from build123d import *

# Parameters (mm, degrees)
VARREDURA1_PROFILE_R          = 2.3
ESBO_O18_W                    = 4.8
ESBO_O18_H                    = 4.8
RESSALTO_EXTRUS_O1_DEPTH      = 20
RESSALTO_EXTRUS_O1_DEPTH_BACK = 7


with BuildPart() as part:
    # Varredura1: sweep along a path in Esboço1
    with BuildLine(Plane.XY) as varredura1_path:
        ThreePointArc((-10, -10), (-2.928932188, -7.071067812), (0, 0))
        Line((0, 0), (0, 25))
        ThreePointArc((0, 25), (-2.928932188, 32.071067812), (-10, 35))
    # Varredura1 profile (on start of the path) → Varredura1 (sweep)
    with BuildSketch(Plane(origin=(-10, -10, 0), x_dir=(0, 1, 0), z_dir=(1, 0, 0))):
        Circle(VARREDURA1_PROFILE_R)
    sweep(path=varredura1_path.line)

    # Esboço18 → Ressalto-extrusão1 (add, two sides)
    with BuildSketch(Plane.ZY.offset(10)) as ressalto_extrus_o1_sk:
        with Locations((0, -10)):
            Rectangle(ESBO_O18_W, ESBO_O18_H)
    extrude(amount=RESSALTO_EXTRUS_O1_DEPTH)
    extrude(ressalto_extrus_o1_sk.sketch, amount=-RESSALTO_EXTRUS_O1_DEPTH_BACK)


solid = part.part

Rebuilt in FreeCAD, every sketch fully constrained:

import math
import FreeCAD as App
import Part
import Sketcher
Q = App.Units.Quantity

doc = App.newDocument("Part")
body = doc.addObject("PartDesign::Body", "Body")

sketch1 = body.newObject("Sketcher::SketchObject", "Sketch")
sketch1.AttachmentSupport = (doc.getObject("YZ_Plane"), [""])
sketch1.MapMode = "FlatFace"
sketch1.AttachmentOffset = App.Placement(App.Vector(0, 0, -10), App.Rotation())
sketch1.addGeometry(Part.Circle(App.Vector(-10, 0, 0), App.Vector(0, 0, 1), 2.3), False)
sketch1.addConstraint([
    Sketcher.Constraint("PointOnObject", 0, 3, -1),
    Sketcher.Constraint("Diameter", 0, Q("4.6 mm")),
    Sketcher.Constraint("DistanceX", 0, 3, -1, 1, Q("10 mm")),
])

sketch2 = body.newObject("Sketcher::SketchObject", "Sketch001")
sketch2.AttachmentSupport = (doc.getObject("XY_Plane"), [""])
sketch2.MapMode = "FlatFace"
sketch2.addGeometry([
    Part.ArcOfCircle(Part.Circle(App.Vector(-10, 0, 0), App.Vector(0, 0, 1), 10), math.radians(-90), math.radians(0)),
    Part.LineSegment(App.Vector(0, 0, 0), App.Vector(0, 25, 0)),
    Part.ArcOfCircle(Part.Circle(App.Vector(-10, 25, 0), App.Vector(0, 0, 1), 10), math.radians(0), math.radians(90)),
], False)
sketch2.addConstraint([
    Sketcher.Constraint("Tangent", 0, 2, 1, 1),
    Sketcher.Constraint("Tangent", 1, 2, 2, 1),
    Sketcher.Constraint("Vertical", 1),
    Sketcher.Constraint("Coincident", 0, 2, -1, 1),
    Sketcher.Constraint("Equal", 0, 2),
    Sketcher.Constraint("Vertical", 2, 3, 0, 1),
    Sketcher.Constraint("Vertical", 0, 1, 2, 2),
    Sketcher.Constraint("Radius", 0, Q("10 mm")),
    Sketcher.Constraint("DistanceY", 1, 1, 1, 2, Q("25 mm")),
])
doc.recompute()

additivepipe = body.newObject("PartDesign::AdditivePipe", "AdditivePipe")
additivepipe.Profile = sketch1
additivepipe.Spine = (sketch2, ["Edge1", "Edge2", "Edge3"])

sketch3 = body.newObject("Sketcher::SketchObject", "Sketch002")
sketch3.AttachmentSupport = (doc.getObject("YZ_Plane"), [""])
sketch3.MapMode = "FlatFace"
sketch3.AttachmentOffset = App.Placement(App.Vector(0, 0, -10), App.Rotation())
sketch3.addGeometry([
    Part.LineSegment(App.Vector(-7.6, -2.4, 0), App.Vector(-12.4, -2.4, 0)),
    Part.LineSegment(App.Vector(-12.4, -2.4, 0), App.Vector(-12.4, 2.4, 0)),
    Part.LineSegment(App.Vector(-12.4, 2.4, 0), App.Vector(-7.6, 2.4, 0)),
    Part.LineSegment(App.Vector(-7.6, 2.4, 0), App.Vector(-7.6, -2.4, 0)),
], False)
sketch3.addConstraint([
    Sketcher.Constraint("Coincident", 0, 2, 1, 1),
    Sketcher.Constraint("Coincident", 1, 2, 2, 1),
    Sketcher.Constraint("Coincident", 2, 2, 3, 1),
    Sketcher.Constraint("Coincident", 3, 2, 0, 1),
    Sketcher.Constraint("Horizontal", 0),
    Sketcher.Constraint("Vertical", 1),
    Sketcher.Constraint("Horizontal", 2),
    Sketcher.Constraint("Vertical", 3),
    Sketcher.Constraint("Equal", 2, 1),
    Sketcher.Constraint("DistanceX", 0, 2, 0, 1, Q("4.8 mm")),
    Sketcher.Constraint("DistanceX", 0, 2, -1, 1, Q("12.4 mm")),
    Sketcher.Constraint("DistanceY", 0, 2, -1, 1, Q("2.4 mm")),
])
pad1 = body.newObject("PartDesign::Pad", "Pad")
pad1.Profile = sketch3
pad1.Type = "TwoLengths"
pad1.Length = 20
pad1.Length2 = 7
pad1.Reversed = True

doc.recompute()
